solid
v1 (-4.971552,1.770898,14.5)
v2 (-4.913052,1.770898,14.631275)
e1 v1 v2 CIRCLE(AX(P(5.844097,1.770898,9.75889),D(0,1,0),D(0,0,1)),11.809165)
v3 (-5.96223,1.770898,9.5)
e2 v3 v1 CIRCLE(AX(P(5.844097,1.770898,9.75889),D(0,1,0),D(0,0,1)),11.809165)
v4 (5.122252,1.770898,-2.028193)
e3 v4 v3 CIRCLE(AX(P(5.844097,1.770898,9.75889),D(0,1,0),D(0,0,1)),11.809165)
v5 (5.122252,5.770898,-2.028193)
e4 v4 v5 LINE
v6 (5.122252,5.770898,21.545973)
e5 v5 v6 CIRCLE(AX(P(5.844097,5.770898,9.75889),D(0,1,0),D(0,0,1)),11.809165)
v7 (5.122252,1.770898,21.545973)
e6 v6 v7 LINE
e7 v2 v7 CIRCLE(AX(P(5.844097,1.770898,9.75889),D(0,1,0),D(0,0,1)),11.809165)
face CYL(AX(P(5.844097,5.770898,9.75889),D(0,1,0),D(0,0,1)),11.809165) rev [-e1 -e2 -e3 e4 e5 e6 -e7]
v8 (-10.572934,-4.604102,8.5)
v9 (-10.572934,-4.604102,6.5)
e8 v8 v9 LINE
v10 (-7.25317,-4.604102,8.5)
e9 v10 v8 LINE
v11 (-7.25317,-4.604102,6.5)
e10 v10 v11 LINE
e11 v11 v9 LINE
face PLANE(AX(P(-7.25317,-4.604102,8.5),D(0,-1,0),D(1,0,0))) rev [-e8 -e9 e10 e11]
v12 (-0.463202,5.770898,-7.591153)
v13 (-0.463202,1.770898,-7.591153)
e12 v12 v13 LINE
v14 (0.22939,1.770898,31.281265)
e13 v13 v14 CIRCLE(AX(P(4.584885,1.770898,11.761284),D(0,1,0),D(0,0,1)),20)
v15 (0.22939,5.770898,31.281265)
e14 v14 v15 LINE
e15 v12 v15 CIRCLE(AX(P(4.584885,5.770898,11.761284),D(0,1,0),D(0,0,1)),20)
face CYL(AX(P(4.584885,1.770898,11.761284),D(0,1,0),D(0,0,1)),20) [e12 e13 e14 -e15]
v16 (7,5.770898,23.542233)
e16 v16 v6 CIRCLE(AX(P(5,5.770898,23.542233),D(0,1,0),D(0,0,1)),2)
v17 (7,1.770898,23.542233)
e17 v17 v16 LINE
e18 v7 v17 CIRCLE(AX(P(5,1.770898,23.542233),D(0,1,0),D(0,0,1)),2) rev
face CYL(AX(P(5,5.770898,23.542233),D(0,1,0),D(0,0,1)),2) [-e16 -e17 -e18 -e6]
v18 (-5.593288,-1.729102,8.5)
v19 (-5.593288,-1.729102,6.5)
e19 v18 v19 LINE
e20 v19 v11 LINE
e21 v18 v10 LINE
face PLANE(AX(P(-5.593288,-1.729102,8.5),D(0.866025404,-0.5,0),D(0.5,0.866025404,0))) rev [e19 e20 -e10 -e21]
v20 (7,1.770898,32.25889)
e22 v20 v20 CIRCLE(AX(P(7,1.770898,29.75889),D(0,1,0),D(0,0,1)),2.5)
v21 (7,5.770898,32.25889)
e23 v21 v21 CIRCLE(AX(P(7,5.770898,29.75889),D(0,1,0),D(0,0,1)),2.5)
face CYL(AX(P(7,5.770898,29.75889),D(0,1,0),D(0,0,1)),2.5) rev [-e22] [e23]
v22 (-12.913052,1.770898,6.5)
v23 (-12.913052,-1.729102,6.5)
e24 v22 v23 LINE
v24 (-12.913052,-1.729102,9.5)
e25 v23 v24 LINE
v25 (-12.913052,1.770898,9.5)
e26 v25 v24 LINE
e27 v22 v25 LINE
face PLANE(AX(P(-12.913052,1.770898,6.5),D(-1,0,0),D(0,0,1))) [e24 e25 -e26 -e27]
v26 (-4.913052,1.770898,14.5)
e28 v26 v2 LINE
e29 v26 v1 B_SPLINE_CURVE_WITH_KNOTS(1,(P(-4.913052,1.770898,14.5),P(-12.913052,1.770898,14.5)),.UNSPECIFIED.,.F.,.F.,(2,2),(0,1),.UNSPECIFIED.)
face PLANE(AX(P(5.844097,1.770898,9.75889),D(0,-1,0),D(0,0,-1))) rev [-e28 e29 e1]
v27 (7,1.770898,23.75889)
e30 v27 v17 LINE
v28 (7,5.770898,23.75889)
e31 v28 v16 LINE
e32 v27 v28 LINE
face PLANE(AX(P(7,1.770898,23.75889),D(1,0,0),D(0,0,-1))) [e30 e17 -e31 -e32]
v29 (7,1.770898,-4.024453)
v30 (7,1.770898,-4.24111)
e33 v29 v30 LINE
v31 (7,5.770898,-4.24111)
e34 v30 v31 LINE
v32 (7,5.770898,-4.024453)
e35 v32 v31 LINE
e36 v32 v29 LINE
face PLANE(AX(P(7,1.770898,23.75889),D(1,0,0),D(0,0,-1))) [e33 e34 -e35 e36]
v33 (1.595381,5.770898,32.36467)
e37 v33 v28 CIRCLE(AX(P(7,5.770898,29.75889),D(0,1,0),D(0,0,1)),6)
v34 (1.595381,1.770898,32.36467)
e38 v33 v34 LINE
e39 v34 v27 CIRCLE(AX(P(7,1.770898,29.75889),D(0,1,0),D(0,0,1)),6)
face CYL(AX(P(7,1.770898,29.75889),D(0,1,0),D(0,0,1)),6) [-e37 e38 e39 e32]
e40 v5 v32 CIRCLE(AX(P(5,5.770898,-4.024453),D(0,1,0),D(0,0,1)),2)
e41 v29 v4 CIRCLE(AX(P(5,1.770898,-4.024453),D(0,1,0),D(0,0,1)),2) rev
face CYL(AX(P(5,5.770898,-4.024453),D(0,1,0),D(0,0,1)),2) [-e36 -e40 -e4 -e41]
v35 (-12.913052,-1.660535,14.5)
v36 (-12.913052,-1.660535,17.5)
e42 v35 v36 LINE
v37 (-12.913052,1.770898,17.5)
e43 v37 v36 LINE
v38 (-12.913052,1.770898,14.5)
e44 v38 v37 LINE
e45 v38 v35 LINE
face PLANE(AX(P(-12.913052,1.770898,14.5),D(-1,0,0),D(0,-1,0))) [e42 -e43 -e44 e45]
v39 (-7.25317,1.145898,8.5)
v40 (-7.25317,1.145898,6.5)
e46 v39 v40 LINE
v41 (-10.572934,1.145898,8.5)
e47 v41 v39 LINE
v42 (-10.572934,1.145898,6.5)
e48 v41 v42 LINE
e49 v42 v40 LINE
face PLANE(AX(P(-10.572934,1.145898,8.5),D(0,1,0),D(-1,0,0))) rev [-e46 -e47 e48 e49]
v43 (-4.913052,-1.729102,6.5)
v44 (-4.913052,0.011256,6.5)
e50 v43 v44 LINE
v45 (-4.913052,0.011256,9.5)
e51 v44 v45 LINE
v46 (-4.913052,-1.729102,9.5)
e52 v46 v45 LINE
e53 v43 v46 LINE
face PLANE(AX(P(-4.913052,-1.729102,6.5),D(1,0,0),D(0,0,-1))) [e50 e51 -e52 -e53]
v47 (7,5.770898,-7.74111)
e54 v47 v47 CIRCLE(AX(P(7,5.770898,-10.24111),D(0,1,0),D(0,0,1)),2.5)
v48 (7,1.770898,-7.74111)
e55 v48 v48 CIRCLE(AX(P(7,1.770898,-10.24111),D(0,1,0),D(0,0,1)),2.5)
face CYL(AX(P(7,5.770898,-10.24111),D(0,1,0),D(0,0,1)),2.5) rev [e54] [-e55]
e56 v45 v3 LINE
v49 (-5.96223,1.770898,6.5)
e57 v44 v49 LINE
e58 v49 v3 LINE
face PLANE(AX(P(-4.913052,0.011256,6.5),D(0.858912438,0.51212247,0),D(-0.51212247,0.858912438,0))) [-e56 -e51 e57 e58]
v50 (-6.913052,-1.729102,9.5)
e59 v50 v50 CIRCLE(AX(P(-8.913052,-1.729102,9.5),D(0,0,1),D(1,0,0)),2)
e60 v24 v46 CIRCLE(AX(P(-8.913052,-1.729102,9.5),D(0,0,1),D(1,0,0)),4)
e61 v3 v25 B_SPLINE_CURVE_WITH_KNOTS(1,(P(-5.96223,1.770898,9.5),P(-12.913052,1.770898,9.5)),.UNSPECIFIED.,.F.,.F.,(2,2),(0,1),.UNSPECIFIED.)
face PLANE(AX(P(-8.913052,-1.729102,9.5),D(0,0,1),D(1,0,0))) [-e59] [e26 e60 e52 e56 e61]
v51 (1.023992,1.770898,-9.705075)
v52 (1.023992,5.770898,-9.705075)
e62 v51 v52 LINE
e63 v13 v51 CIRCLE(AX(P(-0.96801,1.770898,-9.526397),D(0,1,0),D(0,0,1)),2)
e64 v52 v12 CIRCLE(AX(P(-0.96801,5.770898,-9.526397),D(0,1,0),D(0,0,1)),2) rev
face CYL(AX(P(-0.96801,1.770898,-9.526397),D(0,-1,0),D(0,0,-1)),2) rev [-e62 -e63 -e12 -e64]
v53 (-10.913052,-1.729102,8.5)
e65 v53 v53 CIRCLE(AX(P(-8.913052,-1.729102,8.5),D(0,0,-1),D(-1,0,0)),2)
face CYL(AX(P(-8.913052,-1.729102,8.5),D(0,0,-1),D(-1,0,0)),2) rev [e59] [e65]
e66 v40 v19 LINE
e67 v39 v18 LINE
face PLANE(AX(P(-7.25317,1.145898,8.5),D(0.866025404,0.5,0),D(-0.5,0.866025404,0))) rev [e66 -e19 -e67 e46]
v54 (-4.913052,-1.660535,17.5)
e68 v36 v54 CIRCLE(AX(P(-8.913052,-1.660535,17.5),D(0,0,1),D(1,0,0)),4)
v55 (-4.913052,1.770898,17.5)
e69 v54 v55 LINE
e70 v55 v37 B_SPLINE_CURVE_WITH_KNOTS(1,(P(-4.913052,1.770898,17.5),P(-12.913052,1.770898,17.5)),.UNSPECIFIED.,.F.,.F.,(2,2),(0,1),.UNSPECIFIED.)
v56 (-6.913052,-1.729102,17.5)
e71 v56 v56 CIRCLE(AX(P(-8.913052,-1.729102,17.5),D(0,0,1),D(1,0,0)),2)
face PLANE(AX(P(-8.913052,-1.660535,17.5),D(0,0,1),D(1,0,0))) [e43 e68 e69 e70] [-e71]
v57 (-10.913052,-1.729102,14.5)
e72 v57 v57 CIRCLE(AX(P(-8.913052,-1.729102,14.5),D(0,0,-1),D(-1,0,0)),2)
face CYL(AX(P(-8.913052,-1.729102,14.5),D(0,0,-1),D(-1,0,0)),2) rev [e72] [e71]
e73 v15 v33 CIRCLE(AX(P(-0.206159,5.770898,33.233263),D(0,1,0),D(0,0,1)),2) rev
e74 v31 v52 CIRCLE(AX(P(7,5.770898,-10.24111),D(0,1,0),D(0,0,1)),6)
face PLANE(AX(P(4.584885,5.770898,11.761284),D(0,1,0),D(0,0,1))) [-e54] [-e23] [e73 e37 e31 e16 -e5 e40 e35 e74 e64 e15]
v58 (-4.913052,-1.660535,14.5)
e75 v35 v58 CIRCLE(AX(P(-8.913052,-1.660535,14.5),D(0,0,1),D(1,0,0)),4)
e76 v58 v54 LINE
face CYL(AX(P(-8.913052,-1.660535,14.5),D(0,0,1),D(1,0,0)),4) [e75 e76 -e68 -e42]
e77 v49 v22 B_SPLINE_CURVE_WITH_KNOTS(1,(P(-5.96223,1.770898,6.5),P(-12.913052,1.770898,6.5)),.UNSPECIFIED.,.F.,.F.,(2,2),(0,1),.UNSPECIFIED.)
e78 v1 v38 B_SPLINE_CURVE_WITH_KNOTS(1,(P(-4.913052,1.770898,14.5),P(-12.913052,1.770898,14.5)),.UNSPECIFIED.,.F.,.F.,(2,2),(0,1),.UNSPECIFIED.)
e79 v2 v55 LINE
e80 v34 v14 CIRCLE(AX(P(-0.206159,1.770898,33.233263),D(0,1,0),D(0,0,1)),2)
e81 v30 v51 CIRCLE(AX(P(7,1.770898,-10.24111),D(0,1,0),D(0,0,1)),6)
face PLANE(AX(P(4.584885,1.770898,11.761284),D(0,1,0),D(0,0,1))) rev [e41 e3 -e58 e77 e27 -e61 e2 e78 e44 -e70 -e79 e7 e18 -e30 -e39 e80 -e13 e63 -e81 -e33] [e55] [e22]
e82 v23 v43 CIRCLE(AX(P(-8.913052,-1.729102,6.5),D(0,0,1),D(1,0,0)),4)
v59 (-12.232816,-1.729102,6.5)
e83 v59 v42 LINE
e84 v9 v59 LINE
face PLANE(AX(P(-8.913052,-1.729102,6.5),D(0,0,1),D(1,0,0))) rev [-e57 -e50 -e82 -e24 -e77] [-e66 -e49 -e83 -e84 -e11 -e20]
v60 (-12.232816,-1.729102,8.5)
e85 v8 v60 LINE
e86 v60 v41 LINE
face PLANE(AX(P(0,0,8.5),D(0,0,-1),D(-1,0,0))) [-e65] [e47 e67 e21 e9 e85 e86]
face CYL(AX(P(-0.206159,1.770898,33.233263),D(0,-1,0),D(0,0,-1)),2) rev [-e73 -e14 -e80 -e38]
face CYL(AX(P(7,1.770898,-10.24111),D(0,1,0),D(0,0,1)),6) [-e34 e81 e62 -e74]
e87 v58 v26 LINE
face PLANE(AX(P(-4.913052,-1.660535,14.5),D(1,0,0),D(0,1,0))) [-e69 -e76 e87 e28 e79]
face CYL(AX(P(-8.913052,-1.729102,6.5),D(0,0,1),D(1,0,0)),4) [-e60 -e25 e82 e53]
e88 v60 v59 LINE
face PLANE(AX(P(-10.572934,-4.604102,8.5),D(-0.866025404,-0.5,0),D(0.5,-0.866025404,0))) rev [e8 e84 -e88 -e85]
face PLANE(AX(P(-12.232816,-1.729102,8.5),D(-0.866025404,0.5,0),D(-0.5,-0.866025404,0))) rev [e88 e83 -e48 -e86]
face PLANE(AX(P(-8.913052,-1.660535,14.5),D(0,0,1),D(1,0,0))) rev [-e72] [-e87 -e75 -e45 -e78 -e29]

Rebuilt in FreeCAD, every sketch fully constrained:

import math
import FreeCAD as App
import Part
import Sketcher
Q = App.Units.Quantity


def edges_at(feature, points):
    """Names of the edges that pass closest to the given points."""
    edges = feature.Shape.Edges
    near = lambda p: min(range(len(edges)), key=lambda i: edges[i].distToShape(Part.Vertex(*p))[0])
    return sorted({f"Edge{near(p) + 1}" for p in points})


def add_polygon(sketch, points):
    """Adds a closed chain of lines whose ends are joined by coincident constraints."""
    first, n = sketch.GeometryCount, len(points)
    for a, b in zip(points, points[1:] + points[:1]):
        sketch.addGeometry(Part.LineSegment(App.Vector(*a, 0), App.Vector(*b, 0)), False)
    for i in range(n):
        sketch.addConstraint(Sketcher.Constraint("Coincident", first + i, 2, first + (i + 1) % n, 1))

doc = App.newDocument("Part")
body = doc.addObject("PartDesign::Body", "Body")

# Sketch on XZ plane
sketch1 = doc.addObject("Sketcher::SketchObject", "Sketch")
body.addObject(sketch1)
sketch1.AttachmentSupport = (doc.XZ_Plane, [""])
sketch1.MapMode = "FlatFace"
sketch1.AttachmentOffset = App.Placement(App.Vector(0, 0, -5.770898), App.Rotation())
sketch1.addGeometry(Part.LineSegment(App.Vector(7, 24, 0), App.Vector(7, -4, 0)), False)
sketch1.addGeometry(Part.ArcOfCircle(Part.Circle(App.Vector(7, -10, 0), App.Vector(0, 0, 1), 6), math.radians(158), math.radians(450)), False)
sketch1.addGeometry(Part.ArcOfCircle(Part.Circle(App.Vector(5, 12, 0), App.Vector(0, 0, 1), 20), math.radians(100), math.radians(261)), False)
sketch1.addGeometry(Part.ArcOfCircle(Part.Circle(App.Vector(7, 30, 0), App.Vector(0, 0, 1), 6), math.radians(-90), math.radians(163)), False)
sketch1.addConstraint(Sketcher.Constraint("Coincident", 0, 2, 1, 2))
sketch1.addConstraint(Sketcher.Constraint("Coincident", 1, 1, 2, 2))
sketch1.addConstraint(Sketcher.Constraint("Coincident", 2, 1, 3, 2))
sketch1.addConstraint(Sketcher.Constraint("Coincident", 3, 1, 0, 1))
sketch1.addConstraint(Sketcher.Constraint("Vertical", 0))
sketch1.addConstraint(Sketcher.Constraint("Equal", 1, 3))
sketch1.addConstraint(Sketcher.Constraint("Vertical", 1, 3, 3, 3))
sketch1.addConstraint(Sketcher.Constraint("Vertical", 3, 3, 0, 2))
sketch1.addConstraint(Sketcher.Constraint("Radius", 1, 6.0))
sketch1.addConstraint(Sketcher.Constraint("Radius", 2, 20.0))
sketch1.addConstraint(Sketcher.Constraint("DistanceY", 0, 2, 0, 1, 28.0))
sketch1.addConstraint(Sketcher.Constraint("DistanceX", -1, 1, 1, 3, 7.0))
sketch1.addConstraint(Sketcher.Constraint("DistanceY", 1, 1, 2, 1, 39.471401))
sketch1.addConstraint(Sketcher.Constraint("DistanceY", 1, 3, -1, 1, 10.24111))
sketch1.addConstraint(Sketcher.Constraint("DistanceX", -1, 1, 2, 1, 1.252671))
pad1 = doc.addObject("PartDesign::Pad", "Pad")
body.addObject(pad1)
pad1.Profile = sketch1
pad1.Length = 4

# Sketch on XY plane
sketch2 = doc.addObject("Sketcher::SketchObject", "Sketch001")
body.addObject(sketch2)
sketch2.AttachmentSupport = (doc.XY_Plane, [""])
sketch2.MapMode = "FlatFace"
sketch2.AttachmentOffset = App.Placement(App.Vector(0, 0, 17.5), App.Rotation())
sketch2.addGeometry(Part.LineSegment(App.Vector(-4.9, -1.7, 0), App.Vector(-4.9, 1.8, 0)), False)
sketch2.addGeometry(Part.LineSegment(App.Vector(-4.9, 1.8, 0), App.Vector(-12.9, 1.8, 0)), False)
sketch2.addGeometry(Part.LineSegment(App.Vector(-12.9, 1.8, 0), App.Vector(-12.9, -1.7, 0)), False)
sketch2.addGeometry(Part.ArcOfCircle(Part.Circle(App.Vector(-8.9, -1.7, 0), App.Vector(0, 0, 1), 4), math.radians(180), math.radians(360)), False)
sketch2.addConstraint(Sketcher.Constraint("Coincident", 0, 2, 1, 1))
sketch2.addConstraint(Sketcher.Constraint("Coincident", 1, 2, 2, 1))
sketch2.addConstraint(Sketcher.Constraint("Tangent", 2, 2, 3, 1))
sketch2.addConstraint(Sketcher.Constraint("Tangent", 3, 2, 0, 1))
sketch2.addConstraint(Sketcher.Constraint("Vertical", 0))
sketch2.addConstraint(Sketcher.Constraint("Horizontal", 1))
sketch2.addConstraint(Sketcher.Constraint("Vertical", 2))
sketch2.addConstraint(Sketcher.Constraint("Radius", 3, 4.0))
sketch2.addConstraint(Sketcher.Constraint("DistanceY", -1, 1, 0, 2, 1.770898))
sketch2.addConstraint(Sketcher.Constraint("DistanceY", 0, 1, 0, 2, 3.431433))
sketch2.addConstraint(Sketcher.Constraint("DistanceX", 3, 3, -1, 1, 8.913052))
pad2 = doc.addObject("PartDesign::Pad", "Pad001")
body.addObject(pad2)
pad2.Profile = sketch2
pad2.Length = 3
pad2.Reversed = True

# Sketch on XY plane
sketch3 = doc.addObject("Sketcher::SketchObject", "Sketch002")
body.addObject(sketch3)
sketch3.AttachmentSupport = (doc.XY_Plane, [""])
sketch3.MapMode = "FlatFace"
sketch3.AttachmentOffset = App.Placement(App.Vector(0, 0, 9.5), App.Rotation())
sketch3.addGeometry(Part.LineSegment(App.Vector(-4.9, -1.7, 0), App.Vector(-4.9, 0, 0)), False)
sketch3.addGeometry(Part.LineSegment(App.Vector(-4.9, 0, 0), App.Vector(-6, 1.8, 0)), False)
sketch3.addGeometry(Part.LineSegment(App.Vector(-6, 1.8, 0), App.Vector(-12.9, 1.8, 0)), False)
sketch3.addGeometry(Part.LineSegment(App.Vector(-12.9, 1.8, 0), App.Vector(-12.9, -1.7, 0)), False)
sketch3.addGeometry(Part.ArcOfCircle(Part.Circle(App.Vector(-8.9, -1.7, 0), App.Vector(0, 0, 1), 4), math.radians(180), math.radians(360)), False)
sketch3.addConstraint(Sketcher.Constraint("Coincident", 0, 2, 1, 1))
sketch3.addConstraint(Sketcher.Constraint("Coincident", 1, 2, 2, 1))
sketch3.addConstraint(Sketcher.Constraint("Coincident", 2, 2, 3, 1))
sketch3.addConstraint(Sketcher.Constraint("Tangent", 3, 2, 4, 1))
sketch3.addConstraint(Sketcher.Constraint("Tangent", 4, 2, 0, 1))
sketch3.addConstraint(Sketcher.Constraint("Vertical", 0))
sketch3.addConstraint(Sketcher.Constraint("Horizontal", 2))
sketch3.addConstraint(Sketcher.Constraint("Vertical", 3))
sketch3.addConstraint(Sketcher.Constraint("Radius", 4, 4.0))
sketch3.addConstraint(Sketcher.Constraint("DistanceY", 3, 2, 3, 1, 3.5))
sketch3.addConstraint(Sketcher.Constraint("DistanceX", 2, 2, 2, 1, 6.950822))
sketch3.addConstraint(Sketcher.Constraint("DistanceY", 4, 3, -1, 1, 1.729102))
sketch3.addConstraint(Sketcher.Constraint("DistanceY", 0, 1, 0, 2, 1.740358))
sketch3.addConstraint(Sketcher.Constraint("DistanceX", 4, 3, -1, 1, 8.913052))
pad3 = doc.addObject("PartDesign::Pad", "Pad002")
body.addObject(pad3)
pad3.Profile = sketch3
pad3.Length = 3
pad3.Reversed = True

# Sketch on XY plane
sketch4 = doc.addObject("Sketcher::SketchObject", "Sketch003")
body.addObject(sketch4)
sketch4.AttachmentSupport = (doc.XY_Plane, [""])
sketch4.MapMode = "FlatFace"
sketch4.AttachmentOffset = App.Placement(App.Vector(0, 0, 6.5), App.Rotation())
add_polygon(sketch4, [(-7.3, 1.1), (-5.6, -1.7), (-7.3, -4.6), (-10.6, -4.6), (-12.2, -1.7), (-10.6, 1.1)])  # lines 0-5
sketch4.addConstraint(Sketcher.Constraint("Horizontal", 2))
sketch4.addConstraint(Sketcher.Constraint("Horizontal", 5))
sketch4.addConstraint(Sketcher.Constraint("Parallel", 0, 3))
sketch4.addConstraint(Sketcher.Constraint("Parallel", 1, 4))
sketch4.addConstraint(Sketcher.Constraint("Horizontal", 0, 2, 3, 2))
sketch4.addConstraint(Sketcher.Constraint("Vertical", 2, 2, 4, 2))
sketch4.addConstraint(Sketcher.Constraint("Vertical", 1, 2, 5, 2))
sketch4.addConstraint(Sketcher.Constraint("Angle", 0, Q("-60 deg")))
sketch4.addConstraint(Sketcher.Constraint("DistanceY", 2, 2, 4, 2, 5.75))
sketch4.addConstraint(Sketcher.Constraint("DistanceY", 0, 2, -1, 1, 1.729102))
sketch4.addConstraint(Sketcher.Constraint("DistanceX", 2, 2, 2, 1, 3.319764))
sketch4.addConstraint(Sketcher.Constraint("DistanceX", 1, 2, -1, 1, 7.25317))
pocket1 = doc.addObject("PartDesign::Pocket", "Pocket")
body.addObject(pocket1)
pocket1.Profile = sketch4
pocket1.Length = 2
pocket1.Reversed = True

# Sketch on XZ plane
sketch5 = doc.addObject("Sketcher::SketchObject", "Sketch004")
body.addObject(sketch5)
sketch5.AttachmentSupport = (doc.XZ_Plane, [""])
sketch5.MapMode = "FlatFace"
sketch5.AttachmentOffset = App.Placement(App.Vector(0, 0, -5.770898), App.Rotation())
sketch5.addGeometry(Part.Circle(App.Vector(7, 29.8, 0), App.Vector(0, 0, 1), 2.5), False)
sketch5.addGeometry(Part.Circle(App.Vector(7, -10.2, 0), App.Vector(0, 0, 1), 2.5), False)
sketch5.addConstraint(Sketcher.Constraint("Equal", 0, 1))
sketch5.addConstraint(Sketcher.Constraint("Vertical", 0, 3, 1, 3))
sketch5.addConstraint(Sketcher.Constraint("Diameter", 0, 5.0))
sketch5.addConstraint(Sketcher.Constraint("DistanceX", -1, 1, 0, 3, 7.0))
sketch5.addConstraint(Sketcher.Constraint("DistanceY", 1, 3, 0, 3, 40.0))
sketch5.addConstraint(Sketcher.Constraint("DistanceY", -1, 1, 0, 3, 29.75889))
doc.recompute()
hole = doc.addObject("PartDesign::Hole", "Hole")
body.addObject(hole)
hole.Profile = sketch5
hole.ThreadType = "None"
hole.Diameter = 5
hole.DepthType = "Dimension"
hole.Depth = 11.5
hole.DrillPoint = "Flat"
hole.Reversed = True

# Sketch on YZ plane
sketch6 = doc.addObject("Sketcher::SketchObject", "Sketch005")
body.addObject(sketch6)
sketch6.AttachmentSupport = (doc.YZ_Plane, [""])
sketch6.MapMode = "FlatFace"
sketch6.AttachmentOffset = App.Placement(App.Vector(0, 0, -8.913052), App.Rotation())
add_polygon(sketch6, [(-1.7, 35.8), (-1.7, 14.5), (0.3, 14.5), (0.3, 35.8)])  # lines 0-3
sketch6.addGeometry(Part.LineSegment(App.Vector(-1.7, 14.5, 0), App.Vector(-1.7, 35.8, 0)), True)  # axis
sketch6.addConstraint(Sketcher.Constraint("Vertical", 0))
sketch6.addConstraint(Sketcher.Constraint("Horizontal", 1))
sketch6.addConstraint(Sketcher.Constraint("Vertical", 2))
sketch6.addConstraint(Sketcher.Constraint("Horizontal", 3))
sketch6.addConstraint(Sketcher.Constraint("Vertical", 4))
sketch6.addConstraint(Sketcher.Constraint("Coincident", 4, 1, 0, 2))
sketch6.addConstraint(Sketcher.Constraint("Horizontal", 2, 2, 4, 2))
sketch6.addConstraint(Sketcher.Constraint("DistanceX", 1, 1, 1, 2, 2.0))
sketch6.addConstraint(Sketcher.Constraint("DistanceY", -1, 1, 0, 2, 14.5))
sketch6.addConstraint(Sketcher.Constraint("DistanceY", 0, 2, 0, 1, 21.25889))
sketch6.addConstraint(Sketcher.Constraint("DistanceX", 0, 2, -1, 1, 1.729102))
groove = doc.addObject("PartDesign::Groove", "Groove")
body.addObject(groove)
groove.Profile = sketch6
groove.ReferenceAxis = (sketch6, ["Axis0"])
groove.Angle = 360

# Sketch on XZ plane
sketch7 = doc.addObject("Sketcher::SketchObject", "Sketch006")
body.addObject(sketch7)
sketch7.AttachmentSupport = (doc.XZ_Plane, [""])
sketch7.MapMode = "FlatFace"
sketch7.AttachmentOffset = App.Placement(App.Vector(0, 0, -5.770898), App.Rotation())
sketch7.addGeometry(Part.Circle(App.Vector(6, 10, 0), App.Vector(0, 0, 1), 12), False)
sketch7.addConstraint(Sketcher.Constraint("Diameter", 0, 23.61833))
sketch7.addConstraint(Sketcher.Constraint("DistanceY", -1, 1, 0, 3, 9.75889))
sketch7.addConstraint(Sketcher.Constraint("DistanceX", -1, 1, 0, 3, 5.844097))
doc.recompute()
hole2 = doc.addObject("PartDesign::Hole", "Hole001")
body.addObject(hole2)
hole2.Profile = sketch7
hole2.ThreadType = "None"
hole2.Diameter = 23.61833
hole2.DepthType = "Dimension"
hole2.Depth = 4
hole2.DrillPoint = "Flat"
hole2.Reversed = True

# Sketch on XY plane
sketch8 = doc.addObject("Sketcher::SketchObject", "Sketch007")
body.addObject(sketch8)
sketch8.AttachmentSupport = (doc.XY_Plane, [""])
sketch8.MapMode = "FlatFace"
sketch8.AttachmentOffset = App.Placement(App.Vector(0, 0, 8.5), App.Rotation())
sketch8.addGeometry(Part.Circle(App.Vector(-8.9, -1.7, 0), App.Vector(0, 0, 1), 2), False)
sketch8.addConstraint(Sketcher.Constraint("Diameter", 0, 4.0))
sketch8.addConstraint(Sketcher.Constraint("DistanceY", 0, 3, -1, 1, 1.729102))
sketch8.addConstraint(Sketcher.Constraint("DistanceX", 0, 3, -1, 1, 8.913052))
doc.recompute()
hole3 = doc.addObject("PartDesign::Hole", "Hole002")
body.addObject(hole3)
hole3.Profile = sketch8
hole3.ThreadType = "None"
hole3.Diameter = 4
hole3.DepthType = "Dimension"
hole3.Depth = 27.25889
hole3.DrillPoint = "Flat"
hole3.Reversed = True
doc.recompute()

fillet = doc.addObject("PartDesign::Fillet", "Fillet")
body.addObject(fillet)
fillet.Base = (hole3, edges_at(hole3, [
    (1.438, 3.771, -7.99),
    (1.253, 3.771, 31.482),
    (7, 3.771, -1.994),
    (7, 3.771, 21.511),
]))
fillet.Radius = 2

doc.recompute()
